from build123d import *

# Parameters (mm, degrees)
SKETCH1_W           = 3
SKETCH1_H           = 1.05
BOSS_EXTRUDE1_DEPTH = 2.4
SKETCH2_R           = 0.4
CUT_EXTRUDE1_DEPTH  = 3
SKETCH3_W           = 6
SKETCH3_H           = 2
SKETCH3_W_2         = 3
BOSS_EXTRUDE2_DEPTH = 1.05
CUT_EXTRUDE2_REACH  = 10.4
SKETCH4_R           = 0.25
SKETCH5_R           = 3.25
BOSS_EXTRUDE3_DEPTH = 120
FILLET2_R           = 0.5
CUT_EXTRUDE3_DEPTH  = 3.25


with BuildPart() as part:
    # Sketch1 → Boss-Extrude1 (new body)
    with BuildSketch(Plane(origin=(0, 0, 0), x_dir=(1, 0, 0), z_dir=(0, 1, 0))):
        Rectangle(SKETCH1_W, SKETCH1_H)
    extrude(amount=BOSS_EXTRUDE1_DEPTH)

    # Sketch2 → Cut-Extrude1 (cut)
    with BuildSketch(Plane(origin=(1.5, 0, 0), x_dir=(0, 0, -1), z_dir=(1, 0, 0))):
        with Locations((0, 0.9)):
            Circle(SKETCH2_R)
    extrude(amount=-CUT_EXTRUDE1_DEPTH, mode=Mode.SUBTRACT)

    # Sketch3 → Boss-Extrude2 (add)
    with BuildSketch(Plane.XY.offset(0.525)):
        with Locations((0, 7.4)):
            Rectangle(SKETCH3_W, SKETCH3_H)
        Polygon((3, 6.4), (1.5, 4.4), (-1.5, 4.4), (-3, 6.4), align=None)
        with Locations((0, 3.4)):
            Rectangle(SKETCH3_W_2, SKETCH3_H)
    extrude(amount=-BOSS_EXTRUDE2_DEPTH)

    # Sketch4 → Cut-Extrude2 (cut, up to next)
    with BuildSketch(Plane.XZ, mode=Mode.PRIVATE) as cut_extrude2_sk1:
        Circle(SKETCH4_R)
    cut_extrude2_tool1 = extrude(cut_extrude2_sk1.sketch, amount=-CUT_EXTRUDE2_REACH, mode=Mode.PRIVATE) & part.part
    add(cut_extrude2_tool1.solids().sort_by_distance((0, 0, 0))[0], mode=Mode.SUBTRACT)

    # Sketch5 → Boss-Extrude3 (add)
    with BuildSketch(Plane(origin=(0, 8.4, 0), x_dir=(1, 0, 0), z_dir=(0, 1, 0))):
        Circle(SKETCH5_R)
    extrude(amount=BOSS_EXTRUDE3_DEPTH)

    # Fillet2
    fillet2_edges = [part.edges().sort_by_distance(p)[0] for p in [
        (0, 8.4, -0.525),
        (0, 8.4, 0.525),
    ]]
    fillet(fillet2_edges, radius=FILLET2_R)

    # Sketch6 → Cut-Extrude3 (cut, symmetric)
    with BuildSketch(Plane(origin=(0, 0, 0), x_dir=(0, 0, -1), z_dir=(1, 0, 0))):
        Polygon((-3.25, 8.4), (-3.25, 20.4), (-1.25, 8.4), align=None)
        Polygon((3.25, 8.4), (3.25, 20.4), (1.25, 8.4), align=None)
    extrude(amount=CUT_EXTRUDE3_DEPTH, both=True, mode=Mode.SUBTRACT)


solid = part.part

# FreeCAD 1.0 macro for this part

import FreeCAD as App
import Part
import Sketcher

V = App.Vector
Q = App.Units.Quantity


def edges_at(feature, points):
    """Names of the edges that pass closest to the given points."""
    edges = feature.Shape.Edges
    near = lambda p: min(range(len(edges)), key=lambda i: edges[i].distToShape(Part.Vertex(*p))[0])
    return sorted({f"Edge{near(p) + 1}" for p in points})


def add_polygon(sketch, points):
    """Adds a closed chain of lines whose ends are joined by coincident constraints."""
    first, n = sketch.GeometryCount, len(points)
    for a, b in zip(points, points[1:] + points[:1]):
        sketch.addGeometry(Part.LineSegment(App.Vector(*a, 0), App.Vector(*b, 0)), False)
    for i in range(n):
        sketch.addConstraint(Sketcher.Constraint("Coincident", first + i, 2, first + (i + 1) % n, 1))

doc = App.newDocument("Part")
body = doc.addObject("PartDesign::Body", "Body")

# Sketch on XZ plane
sketch1 = body.newObject("Sketcher::SketchObject", "Sketch")
sketch1.AttachmentSupport = (doc.getObject("XZ_Plane"), [""])
sketch1.MapMode = "FlatFace"
add_polygon(sketch1, [(-1.5, -0.5), (-1.5, 0.5), (1.5, 0.5), (1.5, -0.5)])  # lines 0-3
sketch1.addConstraint([
    Sketcher.Constraint("Vertical", 0),
    Sketcher.Constraint("Horizontal", 1),
    Sketcher.Constraint("Vertical", 2),
    Sketcher.Constraint("Horizontal", 3),
    Sketcher.Constraint("Symmetric", 0, 2, 2, 2, -1, 1),
    Sketcher.Constraint("DistanceX", 1, 1, 1, 2, Q("3 mm")),
    Sketcher.Constraint("DistanceY", 0, 1, 0, 2, Q("1.05 mm")),
])
pad1 = body.newObject("PartDesign::Pad", "Pad")
pad1.Profile = sketch1
pad1.Length = 2.4
pad1.Reversed = True

# Sketch on YZ plane
sketch2 = body.newObject("Sketcher::SketchObject", "Sketch001")
sketch2.AttachmentSupport = (doc.getObject("YZ_Plane"), [""])
sketch2.MapMode = "FlatFace"
sketch2.AttachmentOffset = App.Placement(V(0, 0, 1.5), App.Rotation())
sketch2.addGeometry(Part.Circle(V(0.9, 0, 0), V(0, 0, 1), 0.4), False)
sketch2.addConstraint([
    Sketcher.Constraint("PointOnObject", 0, 3, -1),
    Sketcher.Constraint("Diameter", 0, Q("0.8 mm")),
    Sketcher.Constraint("DistanceX", -1, 1, 0, 3, Q("0.9 mm")),
])
pocket1 = body.newObject("PartDesign::Pocket", "Pocket")
pocket1.Profile = sketch2
pocket1.Length = 3

# Sketch on XY plane
sketch3 = body.newObject("Sketcher::SketchObject", "Sketch002")
sketch3.AttachmentSupport = (doc.getObject("XY_Plane"), [""])
sketch3.MapMode = "FlatFace"
sketch3.AttachmentOffset = App.Placement(V(0, 0, 0.525), App.Rotation())
add_polygon(sketch3, [(-3, 8.4), (-3, 6.4), (-1.5, 4.4), (-1.5, 2.4), (1.5, 2.4), (1.5, 4.4), (3, 6.4), (3, 8.4)])  # lines 0-7
sketch3.addConstraint([
    Sketcher.Constraint("Vertical", 0),
    Sketcher.Constraint("Vertical", 2),
    Sketcher.Constraint("Horizontal", 3),
    Sketcher.Constraint("Vertical", 4),
    Sketcher.Constraint("Vertical", 6),
    Sketcher.Constraint("Horizontal", 7),
    Sketcher.Constraint("Symmetric", 1, 2, 4, 2, -2),
    Sketcher.Constraint("Symmetric", 0, 2, 5, 2, -2),
    Sketcher.Constraint("Equal", 0, 2),
    Sketcher.Constraint("DistanceX", 3, 1, 3, 2, Q("3 mm")),
    Sketcher.Constraint("DistanceX", 7, 2, 7, 1, Q("6 mm")),
    Sketcher.Constraint("DistanceY", 0, 2, 0, 1, Q("2 mm")),
    Sketcher.Constraint("DistanceY", 1, 2, 0, 2, Q("2 mm")),
    Sketcher.Constraint("DistanceY", -1, 1, 0, 2, Q("6.4 mm")),
])
pad2 = body.newObject("PartDesign::Pad", "Pad001")
pad2.Profile = sketch3
pad2.Length = 1.05
pad2.Reversed = True

# Sketch on XZ plane
sketch4 = body.newObject("Sketcher::SketchObject", "Sketch003")
sketch4.AttachmentSupport = (doc.getObject("XZ_Plane"), [""])
sketch4.MapMode = "FlatFace"
sketch4.addGeometry(Part.Circle(V(0, 0, 0), V(0, 0, 1), 0.25), False)
sketch4.addConstraint([
    Sketcher.Constraint("Coincident", 0, 3, -1, 1),
    Sketcher.Constraint("Diameter", 0, Q("0.5 mm")),
])
pocket2 = body.newObject("PartDesign::Pocket", "Pocket001")
pocket2.Profile = sketch4
pocket2.Type = "UpToFirst"

# Sketch on XZ plane
sketch5 = body.newObject("Sketcher::SketchObject", "Sketch004")
sketch5.AttachmentSupport = (doc.getObject("XZ_Plane"), [""])
sketch5.MapMode = "FlatFace"
sketch5.AttachmentOffset = App.Placement(V(0, 0, -8.4), App.Rotation())
sketch5.addGeometry(Part.Circle(V(0, 0, 0), V(0, 0, 1), 3.2), False)
sketch5.addConstraint([
    Sketcher.Constraint("Coincident", 0, 3, -1, 1),
    Sketcher.Constraint("Diameter", 0, Q("6.5 mm")),
])
pad3 = body.newObject("PartDesign::Pad", "Pad002")
pad3.Profile = sketch5
pad3.Length = 120
pad3.Reversed = True
doc.recompute()

fillet = body.newObject("PartDesign::Fillet", "Fillet")
fillet.Base = (pad3, edges_at(pad3, [(0, 8.4, -0.525), (0, 8.4, 0.525)]))
fillet.Radius = 0.5

# Sketch on YZ plane
sketch6 = body.newObject("Sketcher::SketchObject", "Sketch005")
sketch6.AttachmentSupport = (doc.getObject("YZ_Plane"), [""])
sketch6.MapMode = "FlatFace"
add_polygon(sketch6, [(20.4, 3.2), (8.4, 3.2), (8.4, 1.2)])  # lines 0-2
add_polygon(sketch6, [(8.4, -3.2), (20.4, -3.2), (8.4, -1.2)])  # lines 3-5
sketch6.addConstraint([
    Sketcher.Constraint("Horizontal", 0),
    Sketcher.Constraint("Vertical", 1),
    Sketcher.Constraint("Horizontal", 3),
    Sketcher.Constraint("Vertical", 5),
    Sketcher.Constraint("Symmetric", 2, 2, 3, 2, -1),
    Sketcher.Constraint("Symmetric", 1, 2, 4, 2, -1),
    Sketcher.Constraint("DistanceX", 0, 2, 0, 1, Q("12 mm")),
    Sketcher.Constraint("DistanceY", 1, 2, 1, 1, Q("2 mm")),
    Sketcher.Constraint("DistanceX", -1, 1, 0, 2, Q("8.4 mm")),
    Sketcher.Constraint("DistanceY", 3, 2, 2, 2, Q("6.5 mm")),
])
pocket3 = body.newObject("PartDesign::Pocket", "Pocket002")
pocket3.Profile = sketch6
pocket3.Length = 6.5
pocket3.Midplane = True

doc.recompute()
